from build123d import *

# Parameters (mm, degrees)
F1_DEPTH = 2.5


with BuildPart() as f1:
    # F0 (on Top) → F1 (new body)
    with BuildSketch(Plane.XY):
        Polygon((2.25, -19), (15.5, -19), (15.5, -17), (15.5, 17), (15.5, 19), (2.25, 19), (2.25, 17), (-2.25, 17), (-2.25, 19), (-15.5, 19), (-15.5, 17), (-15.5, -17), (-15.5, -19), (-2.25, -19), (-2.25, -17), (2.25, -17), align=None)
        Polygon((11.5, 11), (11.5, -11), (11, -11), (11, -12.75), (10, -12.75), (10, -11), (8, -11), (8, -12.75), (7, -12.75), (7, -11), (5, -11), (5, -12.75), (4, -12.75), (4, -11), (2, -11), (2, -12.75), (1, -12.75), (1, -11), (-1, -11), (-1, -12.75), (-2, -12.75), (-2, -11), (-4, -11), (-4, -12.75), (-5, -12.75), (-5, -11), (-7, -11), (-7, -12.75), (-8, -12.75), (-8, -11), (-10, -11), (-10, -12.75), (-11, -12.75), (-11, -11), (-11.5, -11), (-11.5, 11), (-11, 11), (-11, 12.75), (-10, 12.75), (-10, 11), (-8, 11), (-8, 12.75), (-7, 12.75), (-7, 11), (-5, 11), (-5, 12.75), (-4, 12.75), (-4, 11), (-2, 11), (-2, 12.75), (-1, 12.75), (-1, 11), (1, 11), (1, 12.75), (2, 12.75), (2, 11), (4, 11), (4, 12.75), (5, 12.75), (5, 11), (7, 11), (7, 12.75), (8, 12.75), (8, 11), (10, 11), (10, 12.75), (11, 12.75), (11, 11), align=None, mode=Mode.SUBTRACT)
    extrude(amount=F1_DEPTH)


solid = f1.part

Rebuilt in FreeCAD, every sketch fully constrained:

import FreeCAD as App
import Part
import Sketcher
Q = App.Units.Quantity

doc = App.newDocument("Part")
body = doc.addObject("PartDesign::Body", "Body")

# Sketch on XY plane
sketch1 = body.newObject("Sketcher::SketchObject", "Sketch")
sketch1.AttachmentSupport = (doc.getObject("XY_Plane"), [""])
sketch1.MapMode = "FlatFace"
sketch1.addGeometry(Part.LineSegment(App.Vector(2.2, -19, 0), App.Vector(15.5, -19, 0)), False)
sketch1.addGeometry(Part.LineSegment(App.Vector(15.5, -19, 0), App.Vector(15.5, 19, 0)), False)
sketch1.addGeometry(Part.LineSegment(App.Vector(15.5, 19, 0), App.Vector(2.2, 19, 0)), False)
sketch1.addGeometry(Part.LineSegment(App.Vector(2.2, 19, 0), App.Vector(2.2, 17, 0)), False)
sketch1.addGeometry(Part.LineSegment(App.Vector(2.2, 17, 0), App.Vector(-2.2, 17, 0)), False)
sketch1.addGeometry(Part.LineSegment(App.Vector(-2.2, 17, 0), App.Vector(-2.2, 19, 0)), False)
sketch1.addGeometry(Part.LineSegment(App.Vector(-2.2, 19, 0), App.Vector(-15.5, 19, 0)), False)
sketch1.addGeometry(Part.LineSegment(App.Vector(-15.5, 19, 0), App.Vector(-15.5, -19, 0)), False)
sketch1.addGeometry(Part.LineSegment(App.Vector(-15.5, -19, 0), App.Vector(-2.2, -19, 0)), False)
sketch1.addGeometry(Part.LineSegment(App.Vector(-2.2, -19, 0), App.Vector(-2.2, -17, 0)), False)
sketch1.addGeometry(Part.LineSegment(App.Vector(-2.2, -17, 0), App.Vector(2.2, -17, 0)), False)
sketch1.addGeometry(Part.LineSegment(App.Vector(2.2, -17, 0), App.Vector(2.2, -19, 0)), False)
sketch1.addGeometry(Part.LineSegment(App.Vector(11, 11, 0), App.Vector(11.5, 11, 0)), False)
sketch1.addGeometry(Part.LineSegment(App.Vector(11.5, 11, 0), App.Vector(11.5, -11, 0)), False)
sketch1.addGeometry(Part.LineSegment(App.Vector(11.5, -11, 0), App.Vector(11, -11, 0)), False)
sketch1.addGeometry(Part.LineSegment(App.Vector(11, -11, 0), App.Vector(11, -12.8, 0)), False)
sketch1.addGeometry(Part.LineSegment(App.Vector(11, -12.8, 0), App.Vector(10, -12.8, 0)), False)
sketch1.addGeometry(Part.LineSegment(App.Vector(10, -12.8, 0), App.Vector(10, -11, 0)), False)
sketch1.addGeometry(Part.LineSegment(App.Vector(10, -11, 0), App.Vector(8, -11, 0)), False)
sketch1.addGeometry(Part.LineSegment(App.Vector(8, -11, 0), App.Vector(8, -12.8, 0)), False)
sketch1.addGeometry(Part.LineSegment(App.Vector(8, -12.8, 0), App.Vector(7, -12.8, 0)), False)
sketch1.addGeometry(Part.LineSegment(App.Vector(7, -12.8, 0), App.Vector(7, -11, 0)), False)
sketch1.addGeometry(Part.LineSegment(App.Vector(7, -11, 0), App.Vector(5, -11, 0)), False)
sketch1.addGeometry(Part.LineSegment(App.Vector(5, -11, 0), App.Vector(5, -12.8, 0)), False)
sketch1.addGeometry(Part.LineSegment(App.Vector(5, -12.8, 0), App.Vector(4, -12.8, 0)), False)
sketch1.addGeometry(Part.LineSegment(App.Vector(4, -12.8, 0), App.Vector(4, -11, 0)), False)
sketch1.addGeometry(Part.LineSegment(App.Vector(4, -11, 0), App.Vector(2, -11, 0)), False)
sketch1.addGeometry(Part.LineSegment(App.Vector(2, -11, 0), App.Vector(2, -12.8, 0)), False)
sketch1.addGeometry(Part.LineSegment(App.Vector(2, -12.8, 0), App.Vector(1, -12.8, 0)), False)
sketch1.addGeometry(Part.LineSegment(App.Vector(1, -12.8, 0), App.Vector(1, -11, 0)), False)
sketch1.addGeometry(Part.LineSegment(App.Vector(1, -11, 0), App.Vector(-1, -11, 0)), False)
sketch1.addGeometry(Part.LineSegment(App.Vector(-1, -11, 0), App.Vector(-1, -12.8, 0)), False)
sketch1.addGeometry(Part.LineSegment(App.Vector(-1, -12.8, 0), App.Vector(-2, -12.8, 0)), False)
sketch1.addGeometry(Part.LineSegment(App.Vector(-2, -12.8, 0), App.Vector(-2, -11, 0)), False)
sketch1.addGeometry(Part.LineSegment(App.Vector(-2, -11, 0), App.Vector(-4, -11, 0)), False)
sketch1.addGeometry(Part.LineSegment(App.Vector(-4, -11, 0), App.Vector(-4, -12.8, 0)), False)
sketch1.addGeometry(Part.LineSegment(App.Vector(-4, -12.8, 0), App.Vector(-5, -12.8, 0)), False)
sketch1.addGeometry(Part.LineSegment(App.Vector(-5, -12.8, 0), App.Vector(-5, -11, 0)), False)
sketch1.addGeometry(Part.LineSegment(App.Vector(-5, -11, 0), App.Vector(-7, -11, 0)), False)
sketch1.addGeometry(Part.LineSegment(App.Vector(-7, -11, 0), App.Vector(-7, -12.8, 0)), False)
sketch1.addGeometry(Part.LineSegment(App.Vector(-7, -12.8, 0), App.Vector(-8, -12.8, 0)), False)
sketch1.addGeometry(Part.LineSegment(App.Vector(-8, -12.8, 0), App.Vector(-8, -11, 0)), False)
sketch1.addGeometry(Part.LineSegment(App.Vector(-8, -11, 0), App.Vector(-10, -11, 0)), False)
sketch1.addGeometry(Part.LineSegment(App.Vector(-10, -11, 0), App.Vector(-10, -12.8, 0)), False)
sketch1.addGeometry(Part.LineSegment(App.Vector(-10, -12.8, 0), App.Vector(-11, -12.8, 0)), False)
sketch1.addGeometry(Part.LineSegment(App.Vector(-11, -12.8, 0), App.Vector(-11, -11, 0)), False)
sketch1.addGeometry(Part.LineSegment(App.Vector(-11, -11, 0), App.Vector(-11.5, -11, 0)), False)
sketch1.addGeometry(Part.LineSegment(App.Vector(-11.5, -11, 0), App.Vector(-11.5, 11, 0)), False)
sketch1.addGeometry(Part.LineSegment(App.Vector(-11.5, 11, 0), App.Vector(-11, 11, 0)), False)
sketch1.addGeometry(Part.LineSegment(App.Vector(-11, 11, 0), App.Vector(-11, 12.8, 0)), False)
sketch1.addGeometry(Part.LineSegment(App.Vector(-11, 12.8, 0), App.Vector(-10, 12.8, 0)), False)
sketch1.addGeometry(Part.LineSegment(App.Vector(-10, 12.8, 0), App.Vector(-10, 11, 0)), False)
sketch1.addGeometry(Part.LineSegment(App.Vector(-10, 11, 0), App.Vector(-8, 11, 0)), False)
sketch1.addGeometry(Part.LineSegment(App.Vector(-8, 11, 0), App.Vector(-8, 12.8, 0)), False)
sketch1.addGeometry(Part.LineSegment(App.Vector(-8, 12.8, 0), App.Vector(-7, 12.8, 0)), False)
sketch1.addGeometry(Part.LineSegment(App.Vector(-7, 12.8, 0), App.Vector(-7, 11, 0)), False)
sketch1.addGeometry(Part.LineSegment(App.Vector(-7, 11, 0), App.Vector(-5, 11, 0)), False)
sketch1.addGeometry(Part.LineSegment(App.Vector(-5, 11, 0), App.Vector(-5, 12.8, 0)), False)
sketch1.addGeometry(Part.LineSegment(App.Vector(-5, 12.8, 0), App.Vector(-4, 12.8, 0)), False)
sketch1.addGeometry(Part.LineSegment(App.Vector(-4, 12.8, 0), App.Vector(-4, 11, 0)), False)
sketch1.addGeometry(Part.LineSegment(App.Vector(-4, 11, 0), App.Vector(-2, 11, 0)), False)
sketch1.addGeometry(Part.LineSegment(App.Vector(-2, 11, 0), App.Vector(-2, 12.8, 0)), False)
sketch1.addGeometry(Part.LineSegment(App.Vector(-2, 12.8, 0), App.Vector(-1, 12.8, 0)), False)
sketch1.addGeometry(Part.LineSegment(App.Vector(-1, 12.8, 0), App.Vector(-1, 11, 0)), False)
sketch1.addGeometry(Part.LineSegment(App.Vector(-1, 11, 0), App.Vector(1, 11, 0)), False)
sketch1.addGeometry(Part.LineSegment(App.Vector(1, 11, 0), App.Vector(1, 12.8, 0)), False)
sketch1.addGeometry(Part.LineSegment(App.Vector(1, 12.8, 0), App.Vector(2, 12.8, 0)), False)
sketch1.addGeometry(Part.LineSegment(App.Vector(2, 12.8, 0), App.Vector(2, 11, 0)), False)
sketch1.addGeometry(Part.LineSegment(App.Vector(2, 11, 0), App.Vector(4, 11, 0)), False)
sketch1.addGeometry(Part.LineSegment(App.Vector(4, 11, 0), App.Vector(4, 12.8, 0)), False)
sketch1.addGeometry(Part.LineSegment(App.Vector(4, 12.8, 0), App.Vector(5, 12.8, 0)), False)
sketch1.addGeometry(Part.LineSegment(App.Vector(5, 12.8, 0), App.Vector(5, 11, 0)), False)
sketch1.addGeometry(Part.LineSegment(App.Vector(5, 11, 0), App.Vector(7, 11, 0)), False)
sketch1.addGeometry(Part.LineSegment(App.Vector(7, 11, 0), App.Vector(7, 12.8, 0)), False)
sketch1.addGeometry(Part.LineSegment(App.Vector(7, 12.8, 0), App.Vector(8, 12.8, 0)), False)
sketch1.addGeometry(Part.LineSegment(App.Vector(8, 12.8, 0), App.Vector(8, 11, 0)), False)
sketch1.addGeometry(Part.LineSegment(App.Vector(8, 11, 0), App.Vector(10, 11, 0)), False)
sketch1.addGeometry(Part.LineSegment(App.Vector(10, 11, 0), App.Vector(10, 12.8, 0)), False)
sketch1.addGeometry(Part.LineSegment(App.Vector(10, 12.8, 0), App.Vector(11, 12.8, 0)), False)
sketch1.addGeometry(Part.LineSegment(App.Vector(11, 12.8, 0), App.Vector(11, 11, 0)), False)
sketch1.addConstraint(Sketcher.Constraint("Coincident", 0, 2, 1, 1))
sketch1.addConstraint(Sketcher.Constraint("Coincident", 1, 2, 2, 1))
sketch1.addConstraint(Sketcher.Constraint("Coincident", 2, 2, 3, 1))
sketch1.addConstraint(Sketcher.Constraint("Coincident", 3, 2, 4, 1))
sketch1.addConstraint(Sketcher.Constraint("Coincident", 4, 2, 5, 1))
sketch1.addConstraint(Sketcher.Constraint("Coincident", 5, 2, 6, 1))
sketch1.addConstraint(Sketcher.Constraint("Coincident", 6, 2, 7, 1))
sketch1.addConstraint(Sketcher.Constraint("Coincident", 7, 2, 8, 1))
sketch1.addConstraint(Sketcher.Constraint("Coincident", 8, 2, 9, 1))
sketch1.addConstraint(Sketcher.Constraint("Coincident", 9, 2, 10, 1))
sketch1.addConstraint(Sketcher.Constraint("Coincident", 10, 2, 11, 1))
sketch1.addConstraint(Sketcher.Constraint("Coincident", 11, 2, 0, 1))
sketch1.addConstraint(Sketcher.Constraint("Coincident", 12, 2, 13, 1))
sketch1.addConstraint(Sketcher.Constraint("Coincident", 13, 2, 14, 1))
sketch1.addConstraint(Sketcher.Constraint("Coincident", 14, 2, 15, 1))
sketch1.addConstraint(Sketcher.Constraint("Coincident", 15, 2, 16, 1))
sketch1.addConstraint(Sketcher.Constraint("Coincident", 16, 2, 17, 1))
sketch1.addConstraint(Sketcher.Constraint("Coincident", 17, 2, 18, 1))
sketch1.addConstraint(Sketcher.Constraint("Coincident", 18, 2, 19, 1))
sketch1.addConstraint(Sketcher.Constraint("Coincident", 19, 2, 20, 1))
sketch1.addConstraint(Sketcher.Constraint("Coincident", 20, 2, 21, 1))
sketch1.addConstraint(Sketcher.Constraint("Coincident", 21, 2, 22, 1))
sketch1.addConstraint(Sketcher.Constraint("Coincident", 22, 2, 23, 1))
sketch1.addConstraint(Sketcher.Constraint("Coincident", 23, 2, 24, 1))
sketch1.addConstraint(Sketcher.Constraint("Coincident", 24, 2, 25, 1))
sketch1.addConstraint(Sketcher.Constraint("Coincident", 25, 2, 26, 1))
sketch1.addConstraint(Sketcher.Constraint("Coincident", 26, 2, 27, 1))
sketch1.addConstraint(Sketcher.Constraint("Coincident", 27, 2, 28, 1))
sketch1.addConstraint(Sketcher.Constraint("Coincident", 28, 2, 29, 1))
sketch1.addConstraint(Sketcher.Constraint("Coincident", 29, 2, 30, 1))
sketch1.addConstraint(Sketcher.Constraint("Coincident", 30, 2, 31, 1))
sketch1.addConstraint(Sketcher.Constraint("Coincident", 31, 2, 32, 1))
sketch1.addConstraint(Sketcher.Constraint("Coincident", 32, 2, 33, 1))
sketch1.addConstraint(Sketcher.Constraint("Coincident", 33, 2, 34, 1))
sketch1.addConstraint(Sketcher.Constraint("Coincident", 34, 2, 35, 1))
sketch1.addConstraint(Sketcher.Constraint("Coincident", 35, 2, 36, 1))
sketch1.addConstraint(Sketcher.Constraint("Coincident", 36, 2, 37, 1))
sketch1.addConstraint(Sketcher.Constraint("Coincident", 37, 2, 38, 1))
sketch1.addConstraint(Sketcher.Constraint("Coincident", 38, 2, 39, 1))
sketch1.addConstraint(Sketcher.Constraint("Coincident", 39, 2, 40, 1))
sketch1.addConstraint(Sketcher.Constraint("Coincident", 40, 2, 41, 1))
sketch1.addConstraint(Sketcher.Constraint("Coincident", 41, 2, 42, 1))
sketch1.addConstraint(Sketcher.Constraint("Coincident", 42, 2, 43, 1))
sketch1.addConstraint(Sketcher.Constraint("Coincident", 43, 2, 44, 1))
sketch1.addConstraint(Sketcher.Constraint("Coincident", 44, 2, 45, 1))
sketch1.addConstraint(Sketcher.Constraint("Coincident", 45, 2, 46, 1))
sketch1.addConstraint(Sketcher.Constraint("Coincident", 46, 2, 47, 1))
sketch1.addConstraint(Sketcher.Constraint("Coincident", 47, 2, 48, 1))
sketch1.addConstraint(Sketcher.Constraint("Coincident", 48, 2, 49, 1))
sketch1.addConstraint(Sketcher.Constraint("Coincident", 49, 2, 50, 1))
sketch1.addConstraint(Sketcher.Constraint("Coincident", 50, 2, 51, 1))
sketch1.addConstraint(Sketcher.Constraint("Coincident", 51, 2, 52, 1))
sketch1.addConstraint(Sketcher.Constraint("Coincident", 52, 2, 53, 1))
sketch1.addConstraint(Sketcher.Constraint("Coincident", 53, 2, 54, 1))
sketch1.addConstraint(Sketcher.Constraint("Coincident", 54, 2, 55, 1))
sketch1.addConstraint(Sketcher.Constraint("Coincident", 55, 2, 56, 1))
sketch1.addConstraint(Sketcher.Constraint("Coincident", 56, 2, 57, 1))
sketch1.addConstraint(Sketcher.Constraint("Coincident", 57, 2, 58, 1))
sketch1.addConstraint(Sketcher.Constraint("Coincident", 58, 2, 59, 1))
sketch1.addConstraint(Sketcher.Constraint("Coincident", 59, 2, 60, 1))
sketch1.addConstraint(Sketcher.Constraint("Coincident", 60, 2, 61, 1))
sketch1.addConstraint(Sketcher.Constraint("Coincident", 61, 2, 62, 1))
sketch1.addConstraint(Sketcher.Constraint("Coincident", 62, 2, 63, 1))
sketch1.addConstraint(Sketcher.Constraint("Coincident", 63, 2, 64, 1))
sketch1.addConstraint(Sketcher.Constraint("Coincident", 64, 2, 65, 1))
sketch1.addConstraint(Sketcher.Constraint("Coincident", 65, 2, 66, 1))
sketch1.addConstraint(Sketcher.Constraint("Coincident", 66, 2, 67, 1))
sketch1.addConstraint(Sketcher.Constraint("Coincident", 67, 2, 68, 1))
sketch1.addConstraint(Sketcher.Constraint("Coincident", 68, 2, 69, 1))
sketch1.addConstraint(Sketcher.Constraint("Coincident", 69, 2, 70, 1))
sketch1.addConstraint(Sketcher.Constraint("Coincident", 70, 2, 71, 1))
sketch1.addConstraint(Sketcher.Constraint("Coincident", 71, 2, 72, 1))
sketch1.addConstraint(Sketcher.Constraint("Coincident", 72, 2, 73, 1))
sketch1.addConstraint(Sketcher.Constraint("Coincident", 73, 2, 74, 1))
sketch1.addConstraint(Sketcher.Constraint("Coincident", 74, 2, 75, 1))
sketch1.addConstraint(Sketcher.Constraint("Coincident", 75, 2, 76, 1))
sketch1.addConstraint(Sketcher.Constraint("Coincident", 76, 2, 77, 1))
sketch1.addConstraint(Sketcher.Constraint("Coincident", 77, 2, 78, 1))
sketch1.addConstraint(Sketcher.Constraint("Coincident", 78, 2, 79, 1))
sketch1.addConstraint(Sketcher.Constraint("Coincident", 79, 2, 12, 1))
sketch1.addConstraint(Sketcher.Constraint("Horizontal", 0))
sketch1.addConstraint(Sketcher.Constraint("Vertical", 1))
sketch1.addConstraint(Sketcher.Constraint("Horizontal", 2))
sketch1.addConstraint(Sketcher.Constraint("Vertical", 3))
sketch1.addConstraint(Sketcher.Constraint("Horizontal", 4))
sketch1.addConstraint(Sketcher.Constraint("Vertical", 5))
sketch1.addConstraint(Sketcher.Constraint("Horizontal", 6))
sketch1.addConstraint(Sketcher.Constraint("Vertical", 7))
sketch1.addConstraint(Sketcher.Constraint("Horizontal", 8))
sketch1.addConstraint(Sketcher.Constraint("Vertical", 9))
sketch1.addConstraint(Sketcher.Constraint("Horizontal", 10))
sketch1.addConstraint(Sketcher.Constraint("Vertical", 11))
sketch1.addConstraint(Sketcher.Constraint("Horizontal", 12))
sketch1.addConstraint(Sketcher.Constraint("Vertical", 13))
sketch1.addConstraint(Sketcher.Constraint("Horizontal", 14))
sketch1.addConstraint(Sketcher.Constraint("Vertical", 15))
sketch1.addConstraint(Sketcher.Constraint("Horizontal", 16))
sketch1.addConstraint(Sketcher.Constraint("Vertical", 17))
sketch1.addConstraint(Sketcher.Constraint("Horizontal", 18))
sketch1.addConstraint(Sketcher.Constraint("Vertical", 19))
sketch1.addConstraint(Sketcher.Constraint("Horizontal", 20))
sketch1.addConstraint(Sketcher.Constraint("Vertical", 21))
sketch1.addConstraint(Sketcher.Constraint("Horizontal", 22))
sketch1.addConstraint(Sketcher.Constraint("Vertical", 23))
sketch1.addConstraint(Sketcher.Constraint("Horizontal", 24))
sketch1.addConstraint(Sketcher.Constraint("Vertical", 25))
sketch1.addConstraint(Sketcher.Constraint("Horizontal", 26))
sketch1.addConstraint(Sketcher.Constraint("Vertical", 27))
sketch1.addConstraint(Sketcher.Constraint("Horizontal", 28))
sketch1.addConstraint(Sketcher.Constraint("Vertical", 29))
sketch1.addConstraint(Sketcher.Constraint("Horizontal", 30))
sketch1.addConstraint(Sketcher.Constraint("Vertical", 31))
sketch1.addConstraint(Sketcher.Constraint("Horizontal", 32))
sketch1.addConstraint(Sketcher.Constraint("Vertical", 33))
sketch1.addConstraint(Sketcher.Constraint("Horizontal", 34))
sketch1.addConstraint(Sketcher.Constraint("Vertical", 35))
sketch1.addConstraint(Sketcher.Constraint("Horizontal", 36))
sketch1.addConstraint(Sketcher.Constraint("Vertical", 37))
sketch1.addConstraint(Sketcher.Constraint("Horizontal", 38))
sketch1.addConstraint(Sketcher.Constraint("Vertical", 39))
sketch1.addConstraint(Sketcher.Constraint("Horizontal", 40))
sketch1.addConstraint(Sketcher.Constraint("Vertical", 41))
sketch1.addConstraint(Sketcher.Constraint("Horizontal", 42))
sketch1.addConstraint(Sketcher.Constraint("Vertical", 43))
sketch1.addConstraint(Sketcher.Constraint("Horizontal", 44))
sketch1.addConstraint(Sketcher.Constraint("Vertical", 45))
sketch1.addConstraint(Sketcher.Constraint("Horizontal", 46))
sketch1.addConstraint(Sketcher.Constraint("Vertical", 47))
sketch1.addConstraint(Sketcher.Constraint("Horizontal", 48))
sketch1.addConstraint(Sketcher.Constraint("Vertical", 49))
sketch1.addConstraint(Sketcher.Constraint("Horizontal", 50))
sketch1.addConstraint(Sketcher.Constraint("Vertical", 51))
sketch1.addConstraint(Sketcher.Constraint("Horizontal", 52))
sketch1.addConstraint(Sketcher.Constraint("Vertical", 53))
sketch1.addConstraint(Sketcher.Constraint("Horizontal", 54))
sketch1.addConstraint(Sketcher.Constraint("Vertical", 55))
sketch1.addConstraint(Sketcher.Constraint("Horizontal", 56))
sketch1.addConstraint(Sketcher.Constraint("Vertical", 57))
sketch1.addConstraint(Sketcher.Constraint("Horizontal", 58))
sketch1.addConstraint(Sketcher.Constraint("Vertical", 59))
sketch1.addConstraint(Sketcher.Constraint("Horizontal", 60))
sketch1.addConstraint(Sketcher.Constraint("Vertical", 61))
sketch1.addConstraint(Sketcher.Constraint("Horizontal", 62))
sketch1.addConstraint(Sketcher.Constraint("Vertical", 63))
sketch1.addConstraint(Sketcher.Constraint("Horizontal", 64))
sketch1.addConstraint(Sketcher.Constraint("Vertical", 65))
sketch1.addConstraint(Sketcher.Constraint("Horizontal", 66))
sketch1.addConstraint(Sketcher.Constraint("Vertical", 67))
sketch1.addConstraint(Sketcher.Constraint("Horizontal", 68))
sketch1.addConstraint(Sketcher.Constraint("Vertical", 69))
sketch1.addConstraint(Sketcher.Constraint("Horizontal", 70))
sketch1.addConstraint(Sketcher.Constraint("Vertical", 71))
sketch1.addConstraint(Sketcher.Constraint("Horizontal", 72))
sketch1.addConstraint(Sketcher.Constraint("Vertical", 73))
sketch1.addConstraint(Sketcher.Constraint("Horizontal", 74))
sketch1.addConstraint(Sketcher.Constraint("Vertical", 75))
sketch1.addConstraint(Sketcher.Constraint("Horizontal", 76))
sketch1.addConstraint(Sketcher.Constraint("Vertical", 77))
sketch1.addConstraint(Sketcher.Constraint("Horizontal", 78))
sketch1.addConstraint(Sketcher.Constraint("Vertical", 79))
sketch1.addConstraint(Sketcher.Constraint("Symmetric", 0, 2, 6, 2, -1, 1))
sketch1.addConstraint(Sketcher.Constraint("Symmetric", 2, 2, 8, 2, -1, 1))
sketch1.addConstraint(Sketcher.Constraint("Symmetric", 4, 2, 10, 2, -1, 1))
sketch1.addConstraint(Sketcher.Constraint("Symmetric", 12, 2, 46, 2, -1, 1))
sketch1.addConstraint(Sketcher.Constraint("Symmetric", 14, 2, 48, 2, -1, 1))
sketch1.addConstraint(Sketcher.Constraint("Symmetric", 16, 2, 50, 2, -1, 1))
sketch1.addConstraint(Sketcher.Constraint("Symmetric", 18, 2, 52, 2, -1, 1))
sketch1.addConstraint(Sketcher.Constraint("Symmetric", 20, 2, 54, 2, -1, 1))
sketch1.addConstraint(Sketcher.Constraint("Symmetric", 22, 2, 56, 2, -1, 1))
sketch1.addConstraint(Sketcher.Constraint("Symmetric", 24, 2, 58, 2, -1, 1))
sketch1.addConstraint(Sketcher.Constraint("Symmetric", 26, 2, 60, 2, -1, 1))
sketch1.addConstraint(Sketcher.Constraint("Symmetric", 28, 2, 62, 2, -1, 1))
sketch1.addConstraint(Sketcher.Constraint("Symmetric", 30, 2, 64, 2, -1, 1))
sketch1.addConstraint(Sketcher.Constraint("Symmetric", 32, 2, 66, 2, -1, 1))
sketch1.addConstraint(Sketcher.Constraint("Symmetric", 34, 2, 68, 2, -1, 1))
sketch1.addConstraint(Sketcher.Constraint("Symmetric", 36, 2, 70, 2, -1, 1))
sketch1.addConstraint(Sketcher.Constraint("Symmetric", 38, 2, 72, 2, -1, 1))
sketch1.addConstraint(Sketcher.Constraint("Symmetric", 40, 2, 74, 2, -1, 1))
sketch1.addConstraint(Sketcher.Constraint("Symmetric", 42, 2, 76, 2, -1, 1))
sketch1.addConstraint(Sketcher.Constraint("Symmetric", 44, 2, 78, 2, -1, 1))
sketch1.addConstraint(Sketcher.Constraint("Symmetric", 2, 2, 5, 2, -2))
sketch1.addConstraint(Sketcher.Constraint("Symmetric", 28, 2, 31, 2, -2))
sketch1.addConstraint(Sketcher.Constraint("Symmetric", 26, 2, 33, 2, -2))
sketch1.addConstraint(Sketcher.Constraint("Symmetric", 24, 2, 35, 2, -2))
sketch1.addConstraint(Sketcher.Constraint("Symmetric", 22, 2, 37, 2, -2))
sketch1.addConstraint(Sketcher.Constraint("Symmetric", 20, 2, 39, 2, -2))
sketch1.addConstraint(Sketcher.Constraint("Symmetric", 18, 2, 41, 2, -2))
sketch1.addConstraint(Sketcher.Constraint("Symmetric", 16, 2, 43, 2, -2))
sketch1.addConstraint(Sketcher.Constraint("Symmetric", 14, 2, 45, 2, -2))
sketch1.addConstraint(Sketcher.Constraint("Horizontal", 14, 2, 17, 2))
sketch1.addConstraint(Sketcher.Constraint("Horizontal", 16, 2, 19, 2))
sketch1.addConstraint(Sketcher.Constraint("Horizontal", 18, 2, 21, 2))
sketch1.addConstraint(Sketcher.Constraint("Horizontal", 20, 2, 23, 2))
sketch1.addConstraint(Sketcher.Constraint("Horizontal", 22, 2, 25, 2))
sketch1.addConstraint(Sketcher.Constraint("Horizontal", 24, 2, 27, 2))
sketch1.addConstraint(Sketcher.Constraint("Horizontal", 26, 2, 29, 2))
sketch1.addConstraint(Sketcher.Constraint("Equal", 16, 20))
sketch1.addConstraint(Sketcher.Constraint("Equal", 18, 22))
sketch1.addConstraint(Sketcher.Constraint("Equal", 20, 24))
sketch1.addConstraint(Sketcher.Constraint("Equal", 22, 26))
sketch1.addConstraint(Sketcher.Constraint("Equal", 24, 28))
sketch1.addConstraint(Sketcher.Constraint("Equal", 26, 30))
sketch1.addConstraint(Sketcher.Constraint("Equal", 76, 3))
sketch1.addConstraint(Sketcher.Constraint("DistanceX", 16, 2, 16, 1, Q("1 mm")))
sketch1.addConstraint(Sketcher.Constraint("DistanceX", 18, 2, 18, 1, Q("2 mm")))
sketch1.addConstraint(Sketcher.Constraint("DistanceY", 1, 1, 1, 2, Q("38 mm")))
sketch1.addConstraint(Sketcher.Constraint("DistanceY", 13, 2, 13, 1, Q("22 mm")))
sketch1.addConstraint(Sketcher.Constraint("DistanceX", 4, 2, 4, 1, Q("4.5 mm")))
sketch1.addConstraint(Sketcher.Constraint("DistanceX", 12, 1, 12, 2, Q("0.5 mm")))
sketch1.addConstraint(Sketcher.Constraint("DistanceX", 0, 1, 0, 2, Q("13.25 mm")))
sketch1.addConstraint(Sketcher.Constraint("DistanceY", 15, 2, 15, 1, Q("1.75 mm")))
pad1 = body.newObject("PartDesign::Pad", "Pad")
pad1.Profile = sketch1
pad1.Length = 2.5

doc.recompute()
